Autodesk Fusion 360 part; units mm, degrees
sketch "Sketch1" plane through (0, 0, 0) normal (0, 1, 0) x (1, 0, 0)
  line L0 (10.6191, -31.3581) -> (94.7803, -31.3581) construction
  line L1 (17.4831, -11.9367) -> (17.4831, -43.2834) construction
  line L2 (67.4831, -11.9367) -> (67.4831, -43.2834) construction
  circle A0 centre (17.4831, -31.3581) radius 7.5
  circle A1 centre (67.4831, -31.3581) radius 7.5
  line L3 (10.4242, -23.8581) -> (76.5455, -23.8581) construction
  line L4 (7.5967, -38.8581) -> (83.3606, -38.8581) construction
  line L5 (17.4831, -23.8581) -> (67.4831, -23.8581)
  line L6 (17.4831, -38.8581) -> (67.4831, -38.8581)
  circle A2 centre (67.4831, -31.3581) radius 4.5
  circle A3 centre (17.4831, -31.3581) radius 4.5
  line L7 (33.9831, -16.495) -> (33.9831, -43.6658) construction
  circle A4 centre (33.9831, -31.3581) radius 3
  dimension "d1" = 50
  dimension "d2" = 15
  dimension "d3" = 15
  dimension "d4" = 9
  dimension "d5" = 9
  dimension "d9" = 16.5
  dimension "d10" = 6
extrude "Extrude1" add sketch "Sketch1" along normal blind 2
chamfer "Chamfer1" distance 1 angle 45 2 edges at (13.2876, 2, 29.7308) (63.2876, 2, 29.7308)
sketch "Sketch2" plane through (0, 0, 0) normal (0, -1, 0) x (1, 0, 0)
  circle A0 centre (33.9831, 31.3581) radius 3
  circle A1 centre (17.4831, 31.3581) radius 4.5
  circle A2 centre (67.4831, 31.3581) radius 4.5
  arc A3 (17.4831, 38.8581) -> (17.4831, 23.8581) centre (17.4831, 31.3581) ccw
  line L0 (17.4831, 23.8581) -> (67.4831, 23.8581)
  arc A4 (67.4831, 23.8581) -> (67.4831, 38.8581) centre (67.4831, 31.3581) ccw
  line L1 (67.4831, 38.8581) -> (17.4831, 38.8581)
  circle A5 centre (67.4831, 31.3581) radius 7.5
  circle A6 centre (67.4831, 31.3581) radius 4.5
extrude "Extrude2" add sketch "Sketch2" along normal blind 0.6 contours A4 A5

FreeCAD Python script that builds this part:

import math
import FreeCAD as App
import Part
import Sketcher


def edges_at(feature, points):
    """Names of the edges that pass closest to the given points."""
    edges = feature.Shape.Edges
    near = lambda p: min(range(len(edges)), key=lambda i: edges[i].distToShape(Part.Vertex(*p))[0])
    return sorted({f"Edge{near(p) + 1}" for p in points})

doc = App.newDocument("Part")
body = doc.addObject("PartDesign::Body", "Body")

sketch1 = body.newObject("Sketcher::SketchObject", "Sketch")
sketch1.AttachmentSupport = (doc.getObject("XZ_Plane"), [""])
sketch1.MapMode = "FlatFace"
sketch1.addGeometry([
    Part.ArcOfCircle(Part.Circle(App.Vector(17.5, 31.4, 0), App.Vector(0, 0, 1), 7.5), math.radians(90), math.radians(270)),
    Part.LineSegment(App.Vector(17.5, 38.9, 0), App.Vector(67.5, 38.9, 0)),
    Part.ArcOfCircle(Part.Circle(App.Vector(67.5, 31.4, 0), App.Vector(0, 0, 1), 7.5), math.radians(-90), math.radians(90)),
    Part.LineSegment(App.Vector(67.5, 23.9, 0), App.Vector(17.5, 23.9, 0)),
    Part.Circle(App.Vector(17.5, 31.4, 0), App.Vector(0, 0, 1), 4.5),
    Part.Circle(App.Vector(34, 31.4, 0), App.Vector(0, 0, 1), 3),
    Part.Circle(App.Vector(67.5, 31.4, 0), App.Vector(0, 0, 1), 4.5),
], False)
sketch1.addConstraint([
    Sketcher.Constraint("Tangent", 0, 1, 1, 1),
    Sketcher.Constraint("Tangent", 1, 2, 2, 2),
    Sketcher.Constraint("Tangent", 2, 1, 3, 1),
    Sketcher.Constraint("Tangent", 3, 2, 0, 2),
    Sketcher.Constraint("Horizontal", 1),
    Sketcher.Constraint("Horizontal", 3),
    Sketcher.Constraint("Coincident", 4, 3, 0, 3),
    Sketcher.Constraint("Coincident", 6, 3, 2, 3),
    Sketcher.Constraint("Equal", 4, 6),
    Sketcher.Constraint("Horizontal", 4, 3, 5, 3),
    Sketcher.Constraint("Diameter", 4, 9.0),
    Sketcher.Constraint("Diameter", 5, 6.0),
    Sketcher.Constraint("Radius", 0, 7.5),
    Sketcher.Constraint("DistanceX", 1, 1, 1, 2, 50.0),
    Sketcher.Constraint("DistanceX", 0, 3, 5, 3, 16.5),
    Sketcher.Constraint("DistanceX", -1, 1, 0, 3, 17.483),
    Sketcher.Constraint("DistanceY", -1, 1, 0, 3, 31.358),
])
pad1 = body.newObject("PartDesign::Pad", "Pad")
pad1.Profile = sketch1
pad1.Length = 2
pad1.Reversed = True
doc.recompute()

chamfer = body.newObject("PartDesign::Chamfer", "Chamfer")
chamfer.Base = (pad1, edges_at(pad1, [(13.288, 2, 29.731), (63.288, 2, 29.731)]))
chamfer.Size = 1

sketch2 = body.newObject("Sketcher::SketchObject", "Sketch001")
sketch2.AttachmentSupport = (doc.getObject("XZ_Plane"), [""])
sketch2.MapMode = "FlatFace"
sketch2.addGeometry([
    Part.Circle(App.Vector(67.5, 31.4, 0), App.Vector(0, 0, 1), 7.5),
    Part.Circle(App.Vector(67.5, 31.4, 0), App.Vector(0, 0, 1), 4.5),
], False)
sketch2.addConstraint([
    Sketcher.Constraint("Coincident", 1, 3, 0, 3),
    Sketcher.Constraint("Diameter", 0, 15.0),
    Sketcher.Constraint("Diameter", 1, 9.0),
    Sketcher.Constraint("DistanceX", -1, 1, 0, 3, 67.483),
    Sketcher.Constraint("DistanceY", -1, 1, 0, 3, 31.358),
])
pad2 = body.newObject("PartDesign::Pad", "Pad001")
pad2.Profile = sketch2
pad2.Length = 0.6

doc.recompute()
